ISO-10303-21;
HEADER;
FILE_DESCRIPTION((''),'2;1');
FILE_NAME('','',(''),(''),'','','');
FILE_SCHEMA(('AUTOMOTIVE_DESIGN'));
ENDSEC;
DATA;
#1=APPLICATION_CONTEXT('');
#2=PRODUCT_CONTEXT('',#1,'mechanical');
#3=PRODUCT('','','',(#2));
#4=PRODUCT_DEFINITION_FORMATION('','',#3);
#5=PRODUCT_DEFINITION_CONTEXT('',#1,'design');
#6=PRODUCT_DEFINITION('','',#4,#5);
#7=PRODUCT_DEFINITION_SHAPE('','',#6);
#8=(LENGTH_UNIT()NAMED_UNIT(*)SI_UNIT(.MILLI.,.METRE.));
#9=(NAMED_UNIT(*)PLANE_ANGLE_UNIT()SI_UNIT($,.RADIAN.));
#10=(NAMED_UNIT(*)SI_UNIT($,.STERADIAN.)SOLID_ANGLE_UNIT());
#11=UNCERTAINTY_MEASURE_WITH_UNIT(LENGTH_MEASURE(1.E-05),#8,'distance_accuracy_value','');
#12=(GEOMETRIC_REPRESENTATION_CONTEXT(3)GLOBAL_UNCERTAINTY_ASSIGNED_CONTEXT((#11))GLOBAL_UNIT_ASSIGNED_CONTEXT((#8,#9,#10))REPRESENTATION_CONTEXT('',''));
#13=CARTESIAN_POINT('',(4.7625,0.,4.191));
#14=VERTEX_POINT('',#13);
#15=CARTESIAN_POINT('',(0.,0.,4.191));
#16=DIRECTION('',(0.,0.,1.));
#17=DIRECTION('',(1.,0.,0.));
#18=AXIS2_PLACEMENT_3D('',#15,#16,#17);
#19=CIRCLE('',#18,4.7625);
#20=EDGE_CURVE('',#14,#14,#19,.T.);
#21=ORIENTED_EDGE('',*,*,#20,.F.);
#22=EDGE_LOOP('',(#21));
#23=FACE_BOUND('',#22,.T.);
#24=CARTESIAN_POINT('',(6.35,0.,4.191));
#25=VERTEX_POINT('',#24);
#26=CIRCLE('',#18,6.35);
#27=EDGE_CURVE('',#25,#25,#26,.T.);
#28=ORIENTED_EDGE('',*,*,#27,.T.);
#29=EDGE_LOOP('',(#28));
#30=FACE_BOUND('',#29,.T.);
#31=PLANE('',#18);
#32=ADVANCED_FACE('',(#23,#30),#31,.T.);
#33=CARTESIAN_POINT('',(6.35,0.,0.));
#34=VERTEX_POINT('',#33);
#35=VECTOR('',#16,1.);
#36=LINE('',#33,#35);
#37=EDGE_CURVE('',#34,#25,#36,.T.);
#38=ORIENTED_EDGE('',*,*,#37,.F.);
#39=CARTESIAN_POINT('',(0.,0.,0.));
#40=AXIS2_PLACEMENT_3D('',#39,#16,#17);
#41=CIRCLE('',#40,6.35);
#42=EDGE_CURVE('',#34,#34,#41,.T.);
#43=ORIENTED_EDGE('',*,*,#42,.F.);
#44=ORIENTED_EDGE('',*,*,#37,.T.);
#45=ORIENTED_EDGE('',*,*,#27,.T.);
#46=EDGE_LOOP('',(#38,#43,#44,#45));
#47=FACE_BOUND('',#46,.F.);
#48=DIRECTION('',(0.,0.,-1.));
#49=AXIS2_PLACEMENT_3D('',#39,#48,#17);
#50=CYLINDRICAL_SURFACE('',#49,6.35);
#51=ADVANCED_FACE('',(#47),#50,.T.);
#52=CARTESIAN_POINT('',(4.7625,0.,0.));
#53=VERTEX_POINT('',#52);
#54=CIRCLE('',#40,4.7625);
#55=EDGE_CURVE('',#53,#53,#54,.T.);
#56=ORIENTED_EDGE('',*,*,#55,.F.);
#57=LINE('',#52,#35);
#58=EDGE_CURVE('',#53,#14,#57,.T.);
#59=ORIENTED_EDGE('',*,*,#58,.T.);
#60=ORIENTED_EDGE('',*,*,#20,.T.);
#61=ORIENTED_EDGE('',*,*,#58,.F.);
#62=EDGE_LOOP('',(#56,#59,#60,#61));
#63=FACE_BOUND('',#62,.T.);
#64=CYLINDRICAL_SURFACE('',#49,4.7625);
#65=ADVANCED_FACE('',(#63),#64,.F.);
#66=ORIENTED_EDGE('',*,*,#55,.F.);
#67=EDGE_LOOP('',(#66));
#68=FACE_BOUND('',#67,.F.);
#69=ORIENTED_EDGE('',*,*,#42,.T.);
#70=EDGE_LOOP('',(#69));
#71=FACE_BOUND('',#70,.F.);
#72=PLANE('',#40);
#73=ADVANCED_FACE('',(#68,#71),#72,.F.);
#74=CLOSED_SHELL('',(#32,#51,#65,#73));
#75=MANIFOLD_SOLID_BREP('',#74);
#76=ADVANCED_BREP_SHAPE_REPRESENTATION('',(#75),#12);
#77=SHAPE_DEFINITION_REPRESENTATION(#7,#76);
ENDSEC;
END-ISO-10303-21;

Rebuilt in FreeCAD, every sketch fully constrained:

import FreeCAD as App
import Part
import Sketcher
Q = App.Units.Quantity

doc = App.newDocument("Part")
body = doc.addObject("PartDesign::Body", "Body")

# Sketch on XY plane
sketch1 = body.newObject("Sketcher::SketchObject", "Sketch")
sketch1.AttachmentSupport = (doc.getObject("XY_Plane"), [""])
sketch1.MapMode = "FlatFace"
sketch1.addGeometry([
    Part.Circle(App.Vector(0, 0, 0), App.Vector(0, 0, 1), 6.3),
    Part.Circle(App.Vector(0, 0, 0), App.Vector(0, 0, 1), 4.8),
], False)
sketch1.addConstraint([
    Sketcher.Constraint("Coincident", 0, 3, -1, 1),
    Sketcher.Constraint("Coincident", 1, 3, -1, 1),
    Sketcher.Constraint("Diameter", 0, Q("0.5 in")),
    Sketcher.Constraint("Diameter", 1, Q("0.375 in")),
])
pad1 = body.newObject("PartDesign::Pad", "Pad")
pad1.Profile = sketch1
pad1.Length = Q("0.165 in")

doc.recompute()
